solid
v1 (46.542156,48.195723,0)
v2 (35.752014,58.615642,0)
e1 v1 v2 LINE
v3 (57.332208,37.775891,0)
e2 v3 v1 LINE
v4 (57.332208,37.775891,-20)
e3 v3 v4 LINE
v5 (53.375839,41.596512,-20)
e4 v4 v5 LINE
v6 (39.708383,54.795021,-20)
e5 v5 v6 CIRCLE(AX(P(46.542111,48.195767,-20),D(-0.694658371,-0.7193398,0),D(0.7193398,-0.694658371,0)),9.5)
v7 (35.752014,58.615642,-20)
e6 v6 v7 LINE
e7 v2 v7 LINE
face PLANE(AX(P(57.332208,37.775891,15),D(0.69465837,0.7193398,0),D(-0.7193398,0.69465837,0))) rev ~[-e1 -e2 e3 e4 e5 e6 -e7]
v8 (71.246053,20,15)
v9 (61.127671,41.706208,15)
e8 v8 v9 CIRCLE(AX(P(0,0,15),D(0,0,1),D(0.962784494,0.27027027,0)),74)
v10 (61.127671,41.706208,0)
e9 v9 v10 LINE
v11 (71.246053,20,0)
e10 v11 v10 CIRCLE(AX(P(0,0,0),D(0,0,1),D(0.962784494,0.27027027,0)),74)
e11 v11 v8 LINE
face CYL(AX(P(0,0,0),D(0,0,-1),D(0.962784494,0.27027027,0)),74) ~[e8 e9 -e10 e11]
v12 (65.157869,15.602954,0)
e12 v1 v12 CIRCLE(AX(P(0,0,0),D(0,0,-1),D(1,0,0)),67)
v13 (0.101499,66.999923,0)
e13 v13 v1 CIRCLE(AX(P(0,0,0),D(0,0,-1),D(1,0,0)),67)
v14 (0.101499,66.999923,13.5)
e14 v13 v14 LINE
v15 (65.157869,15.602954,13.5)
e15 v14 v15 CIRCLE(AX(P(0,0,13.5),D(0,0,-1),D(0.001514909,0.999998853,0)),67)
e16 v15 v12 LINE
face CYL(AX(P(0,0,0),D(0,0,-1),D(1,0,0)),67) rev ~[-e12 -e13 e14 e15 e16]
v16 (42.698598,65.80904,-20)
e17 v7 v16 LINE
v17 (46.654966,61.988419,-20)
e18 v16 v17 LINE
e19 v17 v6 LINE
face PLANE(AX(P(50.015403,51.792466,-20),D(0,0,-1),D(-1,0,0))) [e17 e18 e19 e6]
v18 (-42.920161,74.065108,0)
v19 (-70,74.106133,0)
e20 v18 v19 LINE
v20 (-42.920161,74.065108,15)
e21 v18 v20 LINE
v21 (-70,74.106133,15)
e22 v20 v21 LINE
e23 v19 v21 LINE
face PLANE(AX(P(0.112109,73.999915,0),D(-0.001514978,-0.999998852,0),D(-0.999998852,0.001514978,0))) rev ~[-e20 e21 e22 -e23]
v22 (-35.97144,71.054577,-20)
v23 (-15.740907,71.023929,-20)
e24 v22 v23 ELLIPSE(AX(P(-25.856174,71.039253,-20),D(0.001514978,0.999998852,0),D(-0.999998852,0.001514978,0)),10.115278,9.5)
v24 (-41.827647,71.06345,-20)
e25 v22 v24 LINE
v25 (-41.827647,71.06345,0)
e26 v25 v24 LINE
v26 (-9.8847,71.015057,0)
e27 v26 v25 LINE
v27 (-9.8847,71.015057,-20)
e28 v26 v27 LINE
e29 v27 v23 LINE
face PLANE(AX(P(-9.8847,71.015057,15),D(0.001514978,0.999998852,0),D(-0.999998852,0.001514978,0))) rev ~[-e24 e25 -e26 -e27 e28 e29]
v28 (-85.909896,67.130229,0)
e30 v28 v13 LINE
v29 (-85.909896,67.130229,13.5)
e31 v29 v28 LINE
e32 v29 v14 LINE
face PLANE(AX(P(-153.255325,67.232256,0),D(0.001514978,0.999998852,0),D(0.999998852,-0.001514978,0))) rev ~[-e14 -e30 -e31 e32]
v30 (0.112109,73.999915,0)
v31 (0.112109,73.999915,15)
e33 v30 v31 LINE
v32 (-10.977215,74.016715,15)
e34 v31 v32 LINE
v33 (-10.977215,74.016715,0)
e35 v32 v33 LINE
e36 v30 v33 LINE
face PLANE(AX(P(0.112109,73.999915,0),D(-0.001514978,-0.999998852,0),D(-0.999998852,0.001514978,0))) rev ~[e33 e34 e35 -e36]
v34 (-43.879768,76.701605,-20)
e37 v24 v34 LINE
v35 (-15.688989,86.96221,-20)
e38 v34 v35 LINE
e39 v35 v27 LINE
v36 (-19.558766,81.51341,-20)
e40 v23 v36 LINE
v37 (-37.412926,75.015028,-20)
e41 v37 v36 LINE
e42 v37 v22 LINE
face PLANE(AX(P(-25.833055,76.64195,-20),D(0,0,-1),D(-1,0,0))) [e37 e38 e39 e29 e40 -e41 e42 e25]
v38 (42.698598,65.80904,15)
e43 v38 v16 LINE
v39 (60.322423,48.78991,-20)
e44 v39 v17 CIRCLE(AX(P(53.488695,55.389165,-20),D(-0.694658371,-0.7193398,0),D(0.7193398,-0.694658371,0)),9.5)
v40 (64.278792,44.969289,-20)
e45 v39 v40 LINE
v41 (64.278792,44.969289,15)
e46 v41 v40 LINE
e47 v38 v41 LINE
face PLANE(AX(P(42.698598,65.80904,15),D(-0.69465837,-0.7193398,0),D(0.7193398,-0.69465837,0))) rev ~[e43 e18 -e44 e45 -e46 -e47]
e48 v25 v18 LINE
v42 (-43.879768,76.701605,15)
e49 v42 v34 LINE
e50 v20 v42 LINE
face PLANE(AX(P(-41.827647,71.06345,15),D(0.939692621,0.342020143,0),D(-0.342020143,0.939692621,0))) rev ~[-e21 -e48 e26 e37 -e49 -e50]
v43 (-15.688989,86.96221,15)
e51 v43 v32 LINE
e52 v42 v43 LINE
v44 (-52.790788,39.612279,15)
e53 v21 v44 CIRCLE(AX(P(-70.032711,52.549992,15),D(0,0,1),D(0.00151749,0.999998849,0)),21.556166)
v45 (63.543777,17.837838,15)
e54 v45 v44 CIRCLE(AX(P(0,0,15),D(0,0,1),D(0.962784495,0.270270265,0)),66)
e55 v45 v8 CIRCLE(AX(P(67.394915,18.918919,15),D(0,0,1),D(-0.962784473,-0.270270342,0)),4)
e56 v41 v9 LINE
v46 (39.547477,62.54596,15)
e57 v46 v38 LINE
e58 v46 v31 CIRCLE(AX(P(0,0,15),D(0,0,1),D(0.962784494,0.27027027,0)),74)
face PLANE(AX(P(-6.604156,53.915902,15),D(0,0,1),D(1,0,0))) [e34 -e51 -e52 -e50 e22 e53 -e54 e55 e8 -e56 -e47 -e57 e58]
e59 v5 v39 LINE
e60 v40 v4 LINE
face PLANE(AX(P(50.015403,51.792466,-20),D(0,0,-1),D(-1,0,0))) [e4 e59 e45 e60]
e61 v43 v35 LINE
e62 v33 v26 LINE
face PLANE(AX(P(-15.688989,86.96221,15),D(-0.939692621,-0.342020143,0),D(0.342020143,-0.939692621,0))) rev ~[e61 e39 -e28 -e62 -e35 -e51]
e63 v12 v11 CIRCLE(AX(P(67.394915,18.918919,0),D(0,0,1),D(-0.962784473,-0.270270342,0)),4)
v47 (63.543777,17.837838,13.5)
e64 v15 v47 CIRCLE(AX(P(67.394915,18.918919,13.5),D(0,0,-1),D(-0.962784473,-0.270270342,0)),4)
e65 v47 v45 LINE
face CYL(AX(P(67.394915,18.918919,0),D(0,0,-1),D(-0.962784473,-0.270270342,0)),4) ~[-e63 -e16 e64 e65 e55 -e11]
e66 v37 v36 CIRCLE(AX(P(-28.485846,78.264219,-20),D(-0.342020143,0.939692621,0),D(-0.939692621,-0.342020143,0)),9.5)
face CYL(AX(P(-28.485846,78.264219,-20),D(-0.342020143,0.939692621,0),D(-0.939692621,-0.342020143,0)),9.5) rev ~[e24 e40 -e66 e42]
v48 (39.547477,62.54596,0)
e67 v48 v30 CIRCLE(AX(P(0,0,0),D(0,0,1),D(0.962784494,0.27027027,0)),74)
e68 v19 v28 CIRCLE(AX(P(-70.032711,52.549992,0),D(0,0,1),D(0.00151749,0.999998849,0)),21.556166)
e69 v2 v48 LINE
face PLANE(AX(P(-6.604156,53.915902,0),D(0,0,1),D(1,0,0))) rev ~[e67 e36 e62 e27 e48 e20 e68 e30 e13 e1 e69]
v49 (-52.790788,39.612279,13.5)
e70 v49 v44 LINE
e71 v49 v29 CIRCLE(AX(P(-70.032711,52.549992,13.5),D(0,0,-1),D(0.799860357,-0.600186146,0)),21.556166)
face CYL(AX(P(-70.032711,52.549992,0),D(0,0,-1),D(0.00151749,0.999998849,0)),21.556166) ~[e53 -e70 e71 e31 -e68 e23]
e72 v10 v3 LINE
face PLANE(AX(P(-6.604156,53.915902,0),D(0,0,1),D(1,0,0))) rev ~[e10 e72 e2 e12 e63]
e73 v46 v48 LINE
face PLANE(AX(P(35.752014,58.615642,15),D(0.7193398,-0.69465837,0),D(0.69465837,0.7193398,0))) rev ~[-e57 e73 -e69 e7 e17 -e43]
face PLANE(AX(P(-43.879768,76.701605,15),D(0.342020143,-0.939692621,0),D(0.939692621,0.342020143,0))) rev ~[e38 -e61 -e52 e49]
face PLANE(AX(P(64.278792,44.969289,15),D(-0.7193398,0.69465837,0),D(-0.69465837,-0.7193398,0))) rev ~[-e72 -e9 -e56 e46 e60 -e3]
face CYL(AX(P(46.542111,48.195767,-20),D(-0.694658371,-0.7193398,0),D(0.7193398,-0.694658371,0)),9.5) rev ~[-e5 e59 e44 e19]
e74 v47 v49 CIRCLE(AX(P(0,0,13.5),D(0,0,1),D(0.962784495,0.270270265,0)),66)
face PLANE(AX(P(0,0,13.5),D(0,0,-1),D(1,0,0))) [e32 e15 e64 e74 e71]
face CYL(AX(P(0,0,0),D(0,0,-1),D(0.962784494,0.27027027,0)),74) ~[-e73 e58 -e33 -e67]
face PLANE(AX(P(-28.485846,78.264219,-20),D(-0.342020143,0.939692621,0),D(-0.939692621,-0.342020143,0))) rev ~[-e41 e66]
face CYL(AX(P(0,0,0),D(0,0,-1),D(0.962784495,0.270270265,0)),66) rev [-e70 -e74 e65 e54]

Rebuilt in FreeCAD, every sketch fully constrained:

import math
import FreeCAD as App
import Part
import Sketcher
from FreeCAD import Vector
Q = App.Units.Quantity


def add_polygon(sketch, points):
    """Adds a closed chain of lines whose ends are joined by coincident constraints."""
    first, n = sketch.GeometryCount, len(points)
    for a, b in zip(points, points[1:] + points[:1]):
        sketch.addGeometry(Part.LineSegment(App.Vector(*a, 0), App.Vector(*b, 0)), False)
    for i in range(n):
        sketch.addConstraint(Sketcher.Constraint("Coincident", first + i, 2, first + (i + 1) % n, 1))

doc = App.newDocument("Part")
body = doc.addObject("PartDesign::Body", "Body")

sketch1 = doc.addObject("Sketcher::SketchObject", "Sketch")
body.addObject(sketch1)
sketch1.AttachmentSupport = (doc.XY_Plane, [""])
sketch1.MapMode = "FlatFace"
sketch1.addGeometry([
    Part.ArcOfCircle(Part.Circle(Vector(0, 0, 0), Vector(0, 0, 1), 74), math.radians(15.68035), math.radians(89.913198)),
    Part.LineSegment(Vector(0.112109, 73.999915, 0), Vector(-70, 74.106133, 0)),
    Part.ArcOfCircle(Part.Circle(Vector(-70.032711, 52.549992, 0), Vector(0, 0, 1), 21.556166), math.radians(89.913054), math.radians(323.116769)),
    Part.ArcOfCircle(Part.Circle(Vector(0, 0, 0), Vector(0, 0, 1), 66), math.radians(15.68035), math.radians(143.116776)),
    Part.ArcOfCircle(Part.Circle(Vector(67.394915, 18.918919, 0), Vector(0, 0, 1), 4), math.radians(-164.319646), math.radians(15.680351)),
], False)
sketch1.addConstraint([
    Sketcher.Constraint("Tangent", 0, 2, 1, 1),
    Sketcher.Constraint("Coincident", 1, 2, 2, 1),
    Sketcher.Constraint("Tangent", 2, 2, 3, 2),
    Sketcher.Constraint("Tangent", 3, 1, 4, 1),
    Sketcher.Constraint("Tangent", 4, 2, 0, 1),
    Sketcher.Constraint("Coincident", 0, 3, -1, 1),
    Sketcher.Constraint("Coincident", 3, 3, -1, 1),
    Sketcher.Constraint("Radius", 0, 74.0),
    Sketcher.Constraint("Radius", 3, 66.0),
    Sketcher.Constraint("DistanceX", 1, 2, -1, 1, 70.0),
    Sketcher.Constraint("DistanceY", -1, 1, 4, 2, 20.0),
    Sketcher.Constraint("Radius", 2, 21.556166),
    Sketcher.Constraint("Distance", 1, 70.112189),
])
pad1 = doc.addObject("PartDesign::Pad", "Pad")
body.addObject(pad1)
pad1.Profile = sketch1
pad1.Length = 15

sketch2 = doc.addObject("Sketcher::SketchObject", "Sketch001")
body.addObject(sketch2)
sketch2.AttachmentSupport = (doc.XY_Plane, [""])
sketch2.MapMode = "FlatFace"
sketch2.addGeometry(Part.Circle(Vector(0, 0, 0), Vector(0, 0, 1), 67), False)
sketch2.addConstraint([
    Sketcher.Constraint("Coincident", 0, 3, -1, 1),
    Sketcher.Constraint("Diameter", 0, 134.0),
])
pocket1 = doc.addObject("PartDesign::Pocket", "Pocket")
body.addObject(pocket1)
pocket1.Profile = sketch2
pocket1.Length = 13.5
pocket1.Reversed = True

sketch3 = doc.addObject("Sketcher::SketchObject", "Sketch002")
body.addObject(sketch3)
sketch3.AttachmentSupport = (doc.XY_Plane, [""])
sketch3.MapMode = "FlatFace"
add_polygon(sketch3, [(-153.255325, 67.232256), (0.101499, 66.999923), (-35.4631, -35.7409)])
sketch3.addConstraint([
    Sketcher.Constraint("Distance", 0, 153.357),
    Sketcher.Constraint("DistanceX", -1, 1, 0, 2, 0.101499),
    Sketcher.Constraint("DistanceX", 1, 2, -1, 1, 35.4631),
    Sketcher.Constraint("DistanceY", 1, 2, -1, 1, 35.7409),
    Sketcher.Constraint("Distance", 1, 108.722203),
    Sketcher.Constraint("Distance", 2, 156.455997),
])
pocket2 = doc.addObject("PartDesign::Pocket", "Pocket001")
body.addObject(pocket2)
pocket2.Profile = sketch3
pocket2.Length = 13.5
pocket2.Reversed = True

sketch4 = doc.addObject("Sketcher::SketchObject", "Sketch003")
body.addObject(sketch4)
sketch4.AttachmentSupport = (doc.XY_Plane, [""])
sketch4.MapMode = "FlatFace"
sketch4.AttachmentOffset = App.Placement(Vector(0, 0, 15), App.Rotation())
add_polygon(sketch4, [(42.698598, 65.80904), (35.752014, 58.615642), (57.332208, 37.775891), (64.278792, 44.969289)])
sketch4.addConstraint([
    Sketcher.Constraint("Perpendicular", 0, 1),
    Sketcher.Constraint("Perpendicular", 1, 2),
    Sketcher.Constraint("Perpendicular", 2, 3),
    Sketcher.Constraint("Angle", 0, Q("-134 deg")),
    Sketcher.Constraint("Distance", 0, 10.0),
    Sketcher.Constraint("Distance", 1, 30.0),
    Sketcher.Constraint("DistanceY", -1, 1, 1, 2, 37.775891),
    Sketcher.Constraint("DistanceX", -1, 1, 2, 2, 64.278792),
])
pad2 = doc.addObject("PartDesign::Pad", "Pad001")
body.addObject(pad2)
pad2.Profile = sketch4
pad2.Length = 35
pad2.Reversed = True

sketch5 = doc.addObject("Sketcher::SketchObject", "Sketch004")
body.addObject(sketch5)
sketch5.AttachmentSupport = (doc.XY_Plane, [""])
sketch5.MapMode = "FlatFace"
sketch5.AttachmentOffset = App.Placement(Vector(0, 0, 15), App.Rotation())
add_polygon(sketch5, [(-43.879768, 76.701605), (-41.827647, 71.06345), (-9.8847, 71.015057), (-15.688989, 86.96221)])
sketch5.addConstraint([
    Sketcher.Constraint("Parallel", 0, 2),
    Sketcher.Constraint("Perpendicular", 2, 3),
    Sketcher.Constraint("Angle", 0, Q("-70 deg")),
    Sketcher.Constraint("Distance", 0, 6.0),
    Sketcher.Constraint("Distance", 3, 30.0),
    Sketcher.Constraint("DistanceX", 1, 2, -1, 1, 9.8847),
    Sketcher.Constraint("DistanceY", -1, 1, 0, 2, 71.06345),
    Sketcher.Constraint("DistanceX", 2, 2, -1, 1, 15.688989),
])
pad3 = doc.addObject("PartDesign::Pad", "Pad002")
body.addObject(pad3)
pad3.Profile = sketch5
pad3.Length = 35
pad3.Reversed = True

sketch6 = doc.addObject("Sketcher::SketchObject", "Sketch005")
body.addObject(sketch6)
sketch6.Placement = App.Placement(Vector(46.542111, 48.195767, 0), App.Rotation(Vector(0.7193398, -0.69465837, 0), Vector(0, 0, 0.999999999), Vector(-0.69465837, -0.7193398, 0), "ZXY"))
sketch6.addGeometry(Part.Circle(Vector(0, -20, 0), Vector(0, 0, 1), 9.5), False)
sketch6.addConstraint([
    Sketcher.Constraint("PointOnObject", 0, 3, -2),
    Sketcher.Constraint("Diameter", 0, 19.0),
    Sketcher.Constraint("DistanceY", 0, 3, -1, 1, 20.0),
])
pocket3 = doc.addObject("PartDesign::Pocket", "Pocket002")
body.addObject(pocket3)
pocket3.Profile = sketch6
pocket3.Type = "ThroughAll"

sketch7 = doc.addObject("Sketcher::SketchObject", "Sketch006")
body.addObject(sketch7)
sketch7.Placement = App.Placement(Vector(-28.485846, 78.264219, 0), App.Rotation(Vector(-0.939692621, -0.342020143, 0), Vector(0, 0, 1), Vector(-0.342020143, 0.939692621, 0), "ZXY"))
sketch7.addGeometry(Part.Circle(Vector(0, -20, 0), Vector(0, 0, 1), 9.5), False)
sketch7.addConstraint([
    Sketcher.Constraint("PointOnObject", 0, 3, -2),
    Sketcher.Constraint("Diameter", 0, 19.0),
    Sketcher.Constraint("DistanceY", 0, 3, -1, 1, 20.0),
])
pocket4 = doc.addObject("PartDesign::Pocket", "Pocket003")
body.addObject(pocket4)
pocket4.Profile = sketch7
pocket4.Type = "ThroughAll"

doc.recompute()
